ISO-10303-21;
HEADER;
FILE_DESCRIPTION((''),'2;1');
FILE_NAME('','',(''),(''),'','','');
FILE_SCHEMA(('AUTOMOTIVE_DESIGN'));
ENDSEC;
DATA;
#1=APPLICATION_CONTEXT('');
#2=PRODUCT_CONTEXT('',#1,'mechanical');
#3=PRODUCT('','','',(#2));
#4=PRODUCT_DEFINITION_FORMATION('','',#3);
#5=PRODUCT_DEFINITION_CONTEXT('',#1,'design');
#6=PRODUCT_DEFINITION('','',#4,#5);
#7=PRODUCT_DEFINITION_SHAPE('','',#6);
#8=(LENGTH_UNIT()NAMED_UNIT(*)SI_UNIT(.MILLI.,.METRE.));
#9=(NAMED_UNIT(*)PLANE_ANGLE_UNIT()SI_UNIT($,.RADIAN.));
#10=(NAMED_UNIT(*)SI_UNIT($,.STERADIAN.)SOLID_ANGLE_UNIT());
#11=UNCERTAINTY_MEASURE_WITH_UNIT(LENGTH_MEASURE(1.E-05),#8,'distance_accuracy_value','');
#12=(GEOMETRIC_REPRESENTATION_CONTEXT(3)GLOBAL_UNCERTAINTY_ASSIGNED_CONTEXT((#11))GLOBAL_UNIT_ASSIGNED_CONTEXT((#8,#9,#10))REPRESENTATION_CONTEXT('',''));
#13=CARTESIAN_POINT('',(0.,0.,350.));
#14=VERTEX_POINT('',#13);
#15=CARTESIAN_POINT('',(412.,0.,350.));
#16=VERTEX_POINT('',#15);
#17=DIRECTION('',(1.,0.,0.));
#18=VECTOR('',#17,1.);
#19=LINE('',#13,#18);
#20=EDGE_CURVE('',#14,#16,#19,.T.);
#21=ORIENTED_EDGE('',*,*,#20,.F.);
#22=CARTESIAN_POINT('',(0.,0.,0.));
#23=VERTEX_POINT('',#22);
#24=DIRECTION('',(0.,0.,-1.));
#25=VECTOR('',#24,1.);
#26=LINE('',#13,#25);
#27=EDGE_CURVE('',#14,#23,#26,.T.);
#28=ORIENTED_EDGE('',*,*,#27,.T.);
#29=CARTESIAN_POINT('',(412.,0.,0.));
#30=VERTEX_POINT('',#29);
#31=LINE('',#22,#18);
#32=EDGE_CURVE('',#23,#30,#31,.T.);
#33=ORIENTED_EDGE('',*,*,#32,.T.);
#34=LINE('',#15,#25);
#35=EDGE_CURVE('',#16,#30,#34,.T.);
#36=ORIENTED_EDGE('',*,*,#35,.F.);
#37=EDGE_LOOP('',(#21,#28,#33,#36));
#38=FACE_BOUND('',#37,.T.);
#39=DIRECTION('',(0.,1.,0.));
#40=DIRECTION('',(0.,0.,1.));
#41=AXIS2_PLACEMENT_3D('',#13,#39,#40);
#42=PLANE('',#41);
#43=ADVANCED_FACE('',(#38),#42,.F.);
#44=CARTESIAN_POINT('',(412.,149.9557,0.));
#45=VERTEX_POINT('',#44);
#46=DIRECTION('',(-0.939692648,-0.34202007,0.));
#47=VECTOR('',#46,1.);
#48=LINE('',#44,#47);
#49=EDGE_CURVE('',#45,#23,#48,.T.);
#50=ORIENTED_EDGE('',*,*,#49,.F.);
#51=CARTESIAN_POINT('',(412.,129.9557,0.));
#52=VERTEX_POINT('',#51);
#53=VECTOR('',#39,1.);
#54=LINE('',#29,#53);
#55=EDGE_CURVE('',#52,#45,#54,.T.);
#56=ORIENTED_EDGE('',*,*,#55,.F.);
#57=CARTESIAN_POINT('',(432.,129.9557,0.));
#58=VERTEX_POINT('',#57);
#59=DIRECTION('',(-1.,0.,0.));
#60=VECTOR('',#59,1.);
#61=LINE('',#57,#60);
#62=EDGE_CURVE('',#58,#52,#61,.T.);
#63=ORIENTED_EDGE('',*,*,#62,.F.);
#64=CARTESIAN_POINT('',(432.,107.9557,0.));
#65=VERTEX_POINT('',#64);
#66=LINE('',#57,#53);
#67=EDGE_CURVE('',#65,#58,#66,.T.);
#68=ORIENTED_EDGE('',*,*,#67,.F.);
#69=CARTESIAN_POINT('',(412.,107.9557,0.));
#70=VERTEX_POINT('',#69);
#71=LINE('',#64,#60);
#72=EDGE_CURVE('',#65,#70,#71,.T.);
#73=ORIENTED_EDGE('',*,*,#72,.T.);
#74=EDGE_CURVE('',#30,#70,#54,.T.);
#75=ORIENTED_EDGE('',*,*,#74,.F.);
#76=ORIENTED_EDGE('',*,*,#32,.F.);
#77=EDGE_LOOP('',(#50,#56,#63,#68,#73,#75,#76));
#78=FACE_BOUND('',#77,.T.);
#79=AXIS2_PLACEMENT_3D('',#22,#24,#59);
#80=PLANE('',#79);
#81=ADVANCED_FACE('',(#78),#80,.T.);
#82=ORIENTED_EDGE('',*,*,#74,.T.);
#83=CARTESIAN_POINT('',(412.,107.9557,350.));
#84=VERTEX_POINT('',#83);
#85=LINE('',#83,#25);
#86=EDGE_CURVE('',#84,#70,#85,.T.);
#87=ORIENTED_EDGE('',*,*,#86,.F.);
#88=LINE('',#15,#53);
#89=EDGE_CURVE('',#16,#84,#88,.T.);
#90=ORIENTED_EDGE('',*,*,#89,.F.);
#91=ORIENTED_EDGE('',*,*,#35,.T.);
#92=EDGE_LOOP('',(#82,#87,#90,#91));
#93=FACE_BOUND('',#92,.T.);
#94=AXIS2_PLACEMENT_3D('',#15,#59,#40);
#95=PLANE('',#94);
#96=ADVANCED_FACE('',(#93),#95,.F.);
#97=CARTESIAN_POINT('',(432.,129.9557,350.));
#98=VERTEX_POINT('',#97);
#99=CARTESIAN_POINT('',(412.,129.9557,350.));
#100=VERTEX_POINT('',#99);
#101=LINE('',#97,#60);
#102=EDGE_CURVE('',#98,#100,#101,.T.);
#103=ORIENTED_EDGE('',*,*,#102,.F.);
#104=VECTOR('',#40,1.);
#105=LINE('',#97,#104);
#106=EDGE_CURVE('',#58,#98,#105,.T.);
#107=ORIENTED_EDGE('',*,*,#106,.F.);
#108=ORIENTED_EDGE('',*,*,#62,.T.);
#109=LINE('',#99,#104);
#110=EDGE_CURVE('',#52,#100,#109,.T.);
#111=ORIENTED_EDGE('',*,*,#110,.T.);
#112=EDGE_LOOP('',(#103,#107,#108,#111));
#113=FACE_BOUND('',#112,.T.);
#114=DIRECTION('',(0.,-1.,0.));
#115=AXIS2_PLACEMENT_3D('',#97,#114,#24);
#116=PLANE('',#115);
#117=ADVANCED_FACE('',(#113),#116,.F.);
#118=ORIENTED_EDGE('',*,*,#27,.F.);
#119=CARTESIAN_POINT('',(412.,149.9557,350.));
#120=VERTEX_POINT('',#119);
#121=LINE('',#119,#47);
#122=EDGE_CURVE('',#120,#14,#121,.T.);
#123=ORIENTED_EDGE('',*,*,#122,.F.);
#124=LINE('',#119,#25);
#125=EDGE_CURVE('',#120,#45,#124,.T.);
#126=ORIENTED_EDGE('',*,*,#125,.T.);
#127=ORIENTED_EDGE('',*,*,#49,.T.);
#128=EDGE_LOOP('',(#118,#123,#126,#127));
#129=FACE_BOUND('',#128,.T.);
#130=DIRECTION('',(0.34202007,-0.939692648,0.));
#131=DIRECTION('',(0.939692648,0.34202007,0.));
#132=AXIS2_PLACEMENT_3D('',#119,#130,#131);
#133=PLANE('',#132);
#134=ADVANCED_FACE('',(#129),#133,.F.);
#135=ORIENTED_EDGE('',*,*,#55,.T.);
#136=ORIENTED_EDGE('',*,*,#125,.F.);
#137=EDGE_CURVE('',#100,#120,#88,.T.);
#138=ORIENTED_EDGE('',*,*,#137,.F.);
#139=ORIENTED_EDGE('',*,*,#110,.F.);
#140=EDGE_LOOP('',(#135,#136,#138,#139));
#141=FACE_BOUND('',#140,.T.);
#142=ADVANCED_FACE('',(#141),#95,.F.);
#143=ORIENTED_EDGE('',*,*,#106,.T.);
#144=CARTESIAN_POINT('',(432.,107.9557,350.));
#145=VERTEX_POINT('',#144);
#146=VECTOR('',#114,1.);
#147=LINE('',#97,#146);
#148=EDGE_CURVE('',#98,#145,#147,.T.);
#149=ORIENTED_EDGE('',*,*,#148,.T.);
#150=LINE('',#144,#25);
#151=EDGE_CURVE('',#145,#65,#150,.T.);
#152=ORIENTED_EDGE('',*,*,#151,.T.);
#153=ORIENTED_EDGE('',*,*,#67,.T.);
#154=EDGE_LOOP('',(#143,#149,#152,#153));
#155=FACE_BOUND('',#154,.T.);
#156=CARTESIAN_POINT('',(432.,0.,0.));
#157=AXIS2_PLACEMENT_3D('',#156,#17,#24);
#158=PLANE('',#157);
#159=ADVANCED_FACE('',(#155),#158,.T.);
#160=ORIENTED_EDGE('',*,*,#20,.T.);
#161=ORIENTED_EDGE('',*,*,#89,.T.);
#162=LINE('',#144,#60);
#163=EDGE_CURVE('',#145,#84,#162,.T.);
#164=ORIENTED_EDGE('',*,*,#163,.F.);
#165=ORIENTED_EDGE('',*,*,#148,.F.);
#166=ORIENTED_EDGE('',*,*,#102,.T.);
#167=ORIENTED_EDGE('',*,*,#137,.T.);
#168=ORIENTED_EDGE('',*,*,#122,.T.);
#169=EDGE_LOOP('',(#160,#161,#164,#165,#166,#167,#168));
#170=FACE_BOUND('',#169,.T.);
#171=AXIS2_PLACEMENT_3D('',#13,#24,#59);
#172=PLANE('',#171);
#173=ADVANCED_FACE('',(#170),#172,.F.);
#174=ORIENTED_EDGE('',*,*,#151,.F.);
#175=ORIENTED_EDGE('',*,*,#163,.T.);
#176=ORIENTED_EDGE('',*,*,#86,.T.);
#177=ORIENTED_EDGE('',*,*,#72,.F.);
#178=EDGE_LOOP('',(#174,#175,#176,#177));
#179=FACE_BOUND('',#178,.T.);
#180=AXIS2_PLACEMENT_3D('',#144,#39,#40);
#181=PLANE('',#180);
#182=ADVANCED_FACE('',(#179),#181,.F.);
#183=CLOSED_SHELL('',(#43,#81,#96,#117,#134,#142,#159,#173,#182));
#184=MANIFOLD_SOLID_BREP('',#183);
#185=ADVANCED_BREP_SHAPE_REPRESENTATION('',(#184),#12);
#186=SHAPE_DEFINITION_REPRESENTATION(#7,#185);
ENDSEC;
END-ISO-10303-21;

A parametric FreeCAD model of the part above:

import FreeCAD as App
import Part
import Sketcher
Q = App.Units.Quantity


def add_polygon(sketch, points):
    """Adds a closed chain of lines whose ends are joined by coincident constraints."""
    first, n = sketch.GeometryCount, len(points)
    for a, b in zip(points, points[1:] + points[:1]):
        sketch.addGeometry(Part.LineSegment(App.Vector(*a, 0), App.Vector(*b, 0)), False)
    for i in range(n):
        sketch.addConstraint(Sketcher.Constraint("Coincident", first + i, 2, first + (i + 1) % n, 1))

doc = App.newDocument("Part")
body = doc.addObject("PartDesign::Body", "Body")

# Sketch on XY plane
sketch1 = body.newObject("Sketcher::SketchObject", "Sketch")
sketch1.AttachmentSupport = (doc.getObject("XY_Plane"), [""])
sketch1.MapMode = "FlatFace"
add_polygon(sketch1, [(0, 0), (412, 0), (412, 150)])  # lines 0-2
sketch1.addConstraint([
    Sketcher.Constraint("Horizontal", 0),
    Sketcher.Constraint("Vertical", 1),
    Sketcher.Constraint("Coincident", 2, 2, -1, 1),
    Sketcher.Constraint("DistanceX", 0, 1, 0, 2, 412.0),
    Sketcher.Constraint("Angle", 2, Q("-160.000004 deg")),
])
pad1 = body.newObject("PartDesign::Pad", "Pad")
pad1.Profile = sketch1
pad1.Length = 350

# Sketch on YZ plane
sketch2 = body.newObject("Sketcher::SketchObject", "Sketch001")
sketch2.AttachmentSupport = (doc.getObject("YZ_Plane"), [""])
sketch2.MapMode = "FlatFace"
sketch2.AttachmentOffset = App.Placement(App.Vector(0, 0, 412), App.Rotation())
add_polygon(sketch2, [(130, 350), (108, 350), (108, 0), (130, 0)])  # lines 0-3
sketch2.addConstraint([
    Sketcher.Constraint("Horizontal", 0),
    Sketcher.Constraint("Vertical", 1),
    Sketcher.Constraint("Horizontal", 2),
    Sketcher.Constraint("Vertical", 3),
    Sketcher.Constraint("PointOnObject", 1, 2, -1),
    Sketcher.Constraint("DistanceX", 0, 2, 0, 1, 22.0),
    Sketcher.Constraint("DistanceY", 1, 2, 1, 1, 350.0),
    Sketcher.Constraint("DistanceX", -1, 1, 0, 2, 107.9557),
])
pad2 = body.newObject("PartDesign::Pad", "Pad001")
pad2.Profile = sketch2
pad2.Length = 20

doc.recompute()
